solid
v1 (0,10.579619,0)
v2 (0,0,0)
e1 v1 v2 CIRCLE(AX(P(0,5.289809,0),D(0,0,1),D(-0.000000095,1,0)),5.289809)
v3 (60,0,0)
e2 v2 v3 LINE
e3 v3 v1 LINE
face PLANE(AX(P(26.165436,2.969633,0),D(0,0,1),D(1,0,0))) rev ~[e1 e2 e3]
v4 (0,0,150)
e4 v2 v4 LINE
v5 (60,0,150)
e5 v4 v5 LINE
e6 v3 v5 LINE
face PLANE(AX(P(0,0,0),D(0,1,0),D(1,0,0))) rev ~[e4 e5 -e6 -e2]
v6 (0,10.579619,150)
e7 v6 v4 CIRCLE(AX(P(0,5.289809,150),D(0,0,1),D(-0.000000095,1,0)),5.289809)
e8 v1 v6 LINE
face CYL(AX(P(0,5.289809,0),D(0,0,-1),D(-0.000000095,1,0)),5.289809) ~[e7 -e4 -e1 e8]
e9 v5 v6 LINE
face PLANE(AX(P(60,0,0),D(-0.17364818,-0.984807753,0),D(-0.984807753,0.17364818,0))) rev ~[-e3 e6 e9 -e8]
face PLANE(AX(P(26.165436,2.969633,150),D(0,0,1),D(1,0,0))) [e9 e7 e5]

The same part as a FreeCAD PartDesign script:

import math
import FreeCAD as App
import Part
import Sketcher
Q = App.Units.Quantity

doc = App.newDocument("Part")
body = doc.addObject("PartDesign::Body", "Body")

# Sketch on XY plane
sketch1 = body.newObject("Sketcher::SketchObject", "Sketch")
sketch1.AttachmentSupport = (doc.getObject("XY_Plane"), [""])
sketch1.MapMode = "FlatFace"
sketch1.addGeometry([
    Part.ArcOfCircle(Part.Circle(App.Vector(0, 5, 0), App.Vector(0, 0, 1), 5), math.radians(90), math.radians(270)),
    Part.LineSegment(App.Vector(0, 0, 0), App.Vector(60, 0, 0)),
    Part.LineSegment(App.Vector(60, 0, 0), App.Vector(0, 11, 0)),
], False)
sketch1.addConstraint([
    Sketcher.Constraint("Tangent", 0, 2, 1, 1),
    Sketcher.Constraint("Coincident", 1, 2, 2, 1),
    Sketcher.Constraint("Coincident", 2, 2, 0, 1),
    Sketcher.Constraint("Horizontal", 1),
    Sketcher.Constraint("Coincident", 0, 2, -1, 1),
    Sketcher.Constraint("PointOnObject", 2, 2, -2),
    Sketcher.Constraint("DistanceX", 1, 1, 1, 2, Q("60 mm")),
    Sketcher.Constraint("Angle", 2, Q("170 deg")),
])
pad1 = body.newObject("PartDesign::Pad", "Pad")
pad1.Profile = sketch1
pad1.Length = 150

doc.recompute()
